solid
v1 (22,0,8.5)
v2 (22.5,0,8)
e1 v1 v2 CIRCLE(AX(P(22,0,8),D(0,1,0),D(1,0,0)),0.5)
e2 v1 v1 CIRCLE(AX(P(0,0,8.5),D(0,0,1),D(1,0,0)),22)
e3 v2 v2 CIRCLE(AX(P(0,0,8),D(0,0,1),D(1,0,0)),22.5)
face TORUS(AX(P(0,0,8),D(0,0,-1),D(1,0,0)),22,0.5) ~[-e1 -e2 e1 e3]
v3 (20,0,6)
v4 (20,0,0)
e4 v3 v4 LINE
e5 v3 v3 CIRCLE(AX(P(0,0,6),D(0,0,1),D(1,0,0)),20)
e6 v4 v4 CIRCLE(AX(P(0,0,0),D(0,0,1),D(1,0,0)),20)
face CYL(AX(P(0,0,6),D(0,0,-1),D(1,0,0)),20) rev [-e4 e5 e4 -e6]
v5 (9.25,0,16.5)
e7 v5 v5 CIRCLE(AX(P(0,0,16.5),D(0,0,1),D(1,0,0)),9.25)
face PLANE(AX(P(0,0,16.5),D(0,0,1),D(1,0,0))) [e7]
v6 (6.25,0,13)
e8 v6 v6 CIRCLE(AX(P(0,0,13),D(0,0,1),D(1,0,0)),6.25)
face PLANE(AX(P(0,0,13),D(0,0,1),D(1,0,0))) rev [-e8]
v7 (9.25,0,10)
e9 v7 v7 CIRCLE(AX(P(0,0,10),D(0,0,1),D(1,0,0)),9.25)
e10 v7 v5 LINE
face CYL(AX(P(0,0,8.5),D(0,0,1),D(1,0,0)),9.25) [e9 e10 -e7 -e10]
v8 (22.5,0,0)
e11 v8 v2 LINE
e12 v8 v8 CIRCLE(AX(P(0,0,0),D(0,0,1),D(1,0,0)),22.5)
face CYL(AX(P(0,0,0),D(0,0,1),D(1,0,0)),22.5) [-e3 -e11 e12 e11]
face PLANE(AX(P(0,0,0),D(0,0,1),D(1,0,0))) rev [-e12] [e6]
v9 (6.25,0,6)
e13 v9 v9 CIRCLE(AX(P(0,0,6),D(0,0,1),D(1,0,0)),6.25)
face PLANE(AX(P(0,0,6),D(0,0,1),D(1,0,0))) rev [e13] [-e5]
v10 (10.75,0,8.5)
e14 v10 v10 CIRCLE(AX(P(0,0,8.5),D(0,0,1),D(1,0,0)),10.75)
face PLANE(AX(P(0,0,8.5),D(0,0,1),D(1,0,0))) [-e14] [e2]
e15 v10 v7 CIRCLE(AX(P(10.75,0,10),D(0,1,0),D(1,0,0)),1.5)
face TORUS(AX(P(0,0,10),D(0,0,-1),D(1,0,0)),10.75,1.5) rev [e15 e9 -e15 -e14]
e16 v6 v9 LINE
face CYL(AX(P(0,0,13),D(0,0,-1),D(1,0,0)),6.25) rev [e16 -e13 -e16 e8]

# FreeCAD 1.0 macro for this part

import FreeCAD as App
import Part
import Sketcher


def edges_at(feature, points):
    """Names of the edges that pass closest to the given points."""
    edges = feature.Shape.Edges
    near = lambda p: min(range(len(edges)), key=lambda i: edges[i].distToShape(Part.Vertex(*p))[0])
    return sorted({f"Edge{near(p) + 1}" for p in points})

doc = App.newDocument("Part")
params = doc.addObject("Spreadsheet::Sheet", "Params")
for row, (alias, value) in enumerate([
    ("sketch1_height", "7 mm"),
    ("sketch1_height2", "6 mm"),
    ("sketch1_height3", "8 mm"),
    ("sketch1_width", "2.5 mm"),
    ("sketch1_height4", "3.5 mm"),
    ("revolution_angle", "360 deg"),
    ("fillet_radius", "1.5 mm"),
    ("fillet2_radius", "0.5 mm"),
], start=1):
    params.set(f"A{row}", alias)
    params.set(f"B{row}", "=" + value)
    params.setAlias(f"B{row}", alias)

body = doc.addObject("PartDesign::Body", "Body")

# Sketch on XZ plane
sketch1 = body.newObject("Sketcher::SketchObject", "Sketch")
sketch1.AttachmentSupport = (doc.getObject("XZ_Plane"), [""])
sketch1.MapMode = "FlatFace"
sketch1.addGeometry([
    Part.LineSegment(App.Vector(0, 16.5, 0), App.Vector(0, 13, 0)),  # 0
    Part.LineSegment(App.Vector(0, 13, 0), App.Vector(6.2, 13, 0)),  # 1
    Part.LineSegment(App.Vector(6.2, 13, 0), App.Vector(6.2, 6, 0)),  # 2
    Part.LineSegment(App.Vector(6.2, 6, 0), App.Vector(20, 6, 0)),  # 3
    Part.LineSegment(App.Vector(20, 6, 0), App.Vector(20, 0, 0)),  # 4
    Part.LineSegment(App.Vector(20, 0, 0), App.Vector(22.5, 0, 0)),  # 5
    Part.LineSegment(App.Vector(22.5, 0, 0), App.Vector(22.5, 8.5, 0)),  # 6
    Part.LineSegment(App.Vector(22.5, 8.5, 0), App.Vector(9.2, 8.5, 0)),  # 7
    Part.LineSegment(App.Vector(9.2, 8.5, 0), App.Vector(9.2, 16.5, 0)),  # 8
    Part.LineSegment(App.Vector(9.2, 16.5, 0), App.Vector(0, 16.5, 0)),  # 9
], False)
sketch1.addConstraint([
    Sketcher.Constraint("Coincident", 0, 2, 1, 1),
    Sketcher.Constraint("Coincident", 1, 2, 2, 1),
    Sketcher.Constraint("Coincident", 2, 2, 3, 1),
    Sketcher.Constraint("Coincident", 3, 2, 4, 1),
    Sketcher.Constraint("Coincident", 4, 2, 5, 1),
    Sketcher.Constraint("Coincident", 5, 2, 6, 1),
    Sketcher.Constraint("Coincident", 6, 2, 7, 1),
    Sketcher.Constraint("Coincident", 7, 2, 8, 1),
    Sketcher.Constraint("Coincident", 8, 2, 9, 1),
    Sketcher.Constraint("Coincident", 9, 2, 0, 1),
    Sketcher.Constraint("Vertical", 0),
    Sketcher.Constraint("Horizontal", 1),
    Sketcher.Constraint("Vertical", 2),
    Sketcher.Constraint("Horizontal", 3),
    Sketcher.Constraint("Vertical", 4),
    Sketcher.Constraint("Horizontal", 5),
    Sketcher.Constraint("Vertical", 6),
    Sketcher.Constraint("Horizontal", 7),
    Sketcher.Constraint("Vertical", 8),
    Sketcher.Constraint("Horizontal", 9),
    Sketcher.Constraint("PointOnObject", 0, 2, -2),
    Sketcher.Constraint("PointOnObject", 4, 2, -1),
    Sketcher.Constraint("DistanceY", 2, 2, 2, 1, 7.0),
    Sketcher.Constraint("DistanceY", 4, 2, 4, 1, 6.0),
    Sketcher.Constraint("DistanceY", 8, 1, 8, 2, 8.0),
    Sketcher.Constraint("DistanceX", 5, 1, 5, 2, 2.5),
    Sketcher.Constraint("DistanceY", 0, 2, 0, 1, 3.5),
    Sketcher.Constraint("DistanceX", -1, 1, 3, 2, 20.0),
    Sketcher.Constraint("DistanceX", 2, 2, 7, 2, 3.0),
    Sketcher.Constraint("DistanceX", 1, 1, 1, 2, 6.25),
])
sketch1.setExpression("Constraints[22]", "Params.sketch1_height")
sketch1.setExpression("Constraints[23]", "Params.sketch1_height2")
sketch1.setExpression("Constraints[24]", "Params.sketch1_height3")
sketch1.setExpression("Constraints[25]", "Params.sketch1_width")
sketch1.setExpression("Constraints[26]", "Params.sketch1_height4")
revolution = body.newObject("PartDesign::Revolution", "Revolution")
revolution.Profile = sketch1
revolution.ReferenceAxis = (sketch1, ["V_Axis"])
revolution.setExpression("Angle", "Params.revolution_angle")
doc.recompute()

fillet = body.newObject("PartDesign::Fillet", "Fillet")
fillet.Base = (revolution, edges_at(revolution, [(-9.25, 0, 8.5)]))
fillet.setExpression("Radius", "Params.fillet_radius")
doc.recompute()

fillet2 = body.newObject("PartDesign::Fillet", "Fillet001")
fillet2.Base = (fillet, edges_at(fillet, [(-22.5, 0, 8.5)]))
fillet2.setExpression("Radius", "Params.fillet2_radius")

doc.recompute()
